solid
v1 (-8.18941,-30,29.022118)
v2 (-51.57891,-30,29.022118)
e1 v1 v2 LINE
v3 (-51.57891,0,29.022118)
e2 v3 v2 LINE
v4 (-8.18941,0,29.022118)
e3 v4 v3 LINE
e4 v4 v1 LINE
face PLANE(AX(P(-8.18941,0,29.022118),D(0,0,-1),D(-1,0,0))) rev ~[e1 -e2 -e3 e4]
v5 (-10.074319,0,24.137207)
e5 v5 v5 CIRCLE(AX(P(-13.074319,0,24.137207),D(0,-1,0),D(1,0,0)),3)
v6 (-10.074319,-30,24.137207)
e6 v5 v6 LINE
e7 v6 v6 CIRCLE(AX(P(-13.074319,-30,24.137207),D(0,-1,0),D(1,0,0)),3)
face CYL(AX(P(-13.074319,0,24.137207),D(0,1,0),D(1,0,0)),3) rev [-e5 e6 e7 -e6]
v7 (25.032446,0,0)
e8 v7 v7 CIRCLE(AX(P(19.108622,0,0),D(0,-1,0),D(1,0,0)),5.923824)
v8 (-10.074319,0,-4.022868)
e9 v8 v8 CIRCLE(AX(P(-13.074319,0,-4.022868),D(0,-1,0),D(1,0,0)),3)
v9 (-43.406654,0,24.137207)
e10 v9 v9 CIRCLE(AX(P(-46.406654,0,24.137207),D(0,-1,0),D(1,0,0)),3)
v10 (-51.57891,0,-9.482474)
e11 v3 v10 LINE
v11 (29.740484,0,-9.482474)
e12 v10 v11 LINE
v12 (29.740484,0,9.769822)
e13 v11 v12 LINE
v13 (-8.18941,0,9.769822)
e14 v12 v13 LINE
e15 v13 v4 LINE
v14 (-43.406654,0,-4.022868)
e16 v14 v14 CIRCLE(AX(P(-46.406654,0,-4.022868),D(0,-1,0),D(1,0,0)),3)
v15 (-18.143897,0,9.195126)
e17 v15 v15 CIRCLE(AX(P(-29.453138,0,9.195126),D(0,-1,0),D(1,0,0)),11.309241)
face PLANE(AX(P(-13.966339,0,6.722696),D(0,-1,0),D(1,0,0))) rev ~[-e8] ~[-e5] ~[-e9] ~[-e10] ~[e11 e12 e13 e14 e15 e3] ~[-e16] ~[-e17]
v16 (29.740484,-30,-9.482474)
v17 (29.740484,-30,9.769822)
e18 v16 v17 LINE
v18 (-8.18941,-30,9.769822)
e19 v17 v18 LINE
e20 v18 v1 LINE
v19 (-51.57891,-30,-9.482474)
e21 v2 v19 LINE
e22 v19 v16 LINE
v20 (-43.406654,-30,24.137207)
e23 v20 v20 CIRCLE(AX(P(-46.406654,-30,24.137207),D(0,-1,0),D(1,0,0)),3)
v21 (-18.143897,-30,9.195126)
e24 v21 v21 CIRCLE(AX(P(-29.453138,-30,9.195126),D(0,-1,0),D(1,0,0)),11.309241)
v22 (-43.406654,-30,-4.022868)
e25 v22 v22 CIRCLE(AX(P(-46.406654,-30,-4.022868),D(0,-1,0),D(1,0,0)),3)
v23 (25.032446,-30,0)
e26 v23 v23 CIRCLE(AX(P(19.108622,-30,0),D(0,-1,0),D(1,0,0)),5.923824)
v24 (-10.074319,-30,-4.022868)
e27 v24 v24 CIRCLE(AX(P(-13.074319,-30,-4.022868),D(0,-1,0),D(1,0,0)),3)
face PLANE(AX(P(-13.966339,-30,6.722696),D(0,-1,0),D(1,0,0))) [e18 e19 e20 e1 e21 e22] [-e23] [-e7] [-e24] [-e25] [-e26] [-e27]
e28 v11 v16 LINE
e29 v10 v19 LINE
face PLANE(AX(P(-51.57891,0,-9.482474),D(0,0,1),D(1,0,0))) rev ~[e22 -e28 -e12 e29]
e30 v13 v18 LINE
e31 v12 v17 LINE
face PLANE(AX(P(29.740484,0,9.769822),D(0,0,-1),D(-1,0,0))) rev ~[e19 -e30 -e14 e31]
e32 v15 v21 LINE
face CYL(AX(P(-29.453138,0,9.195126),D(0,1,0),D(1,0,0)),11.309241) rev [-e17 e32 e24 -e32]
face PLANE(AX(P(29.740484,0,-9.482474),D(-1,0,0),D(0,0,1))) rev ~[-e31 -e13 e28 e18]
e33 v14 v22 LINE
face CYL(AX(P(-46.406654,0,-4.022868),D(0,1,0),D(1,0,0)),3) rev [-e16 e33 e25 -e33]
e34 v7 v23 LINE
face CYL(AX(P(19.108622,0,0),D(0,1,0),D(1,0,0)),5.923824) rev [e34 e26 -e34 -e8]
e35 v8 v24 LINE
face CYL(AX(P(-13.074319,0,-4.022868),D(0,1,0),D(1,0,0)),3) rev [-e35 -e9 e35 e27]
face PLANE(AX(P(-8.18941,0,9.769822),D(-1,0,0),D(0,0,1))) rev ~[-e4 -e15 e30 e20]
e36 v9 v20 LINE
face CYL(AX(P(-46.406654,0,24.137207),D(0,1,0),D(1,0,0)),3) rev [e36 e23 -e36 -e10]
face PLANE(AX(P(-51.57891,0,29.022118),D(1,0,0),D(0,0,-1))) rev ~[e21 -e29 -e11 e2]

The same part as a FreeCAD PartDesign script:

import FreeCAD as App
import Part
import Sketcher

V = App.Vector


def add_polygon(sketch, points):
    """Adds a closed chain of lines whose ends are joined by coincident constraints."""
    first, n = sketch.GeometryCount, len(points)
    for a, b in zip(points, points[1:] + points[:1]):
        sketch.addGeometry(Part.LineSegment(App.Vector(*a, 0), App.Vector(*b, 0)), False)
    for i in range(n):
        sketch.addConstraint(Sketcher.Constraint("Coincident", first + i, 2, first + (i + 1) % n, 1))

doc = App.newDocument("Part")
body = doc.addObject("PartDesign::Body", "Body")

# Sketch on XZ plane
sketch1 = body.newObject("Sketcher::SketchObject", "Sketch")
sketch1.AttachmentSupport = (doc.getObject("XZ_Plane"), [""])
sketch1.MapMode = "FlatFace"
add_polygon(sketch1, [(-8.2, 29), (-51.6, 29), (-51.6, -9.5), (29.7, -9.5), (29.7, 9.8), (-8.2, 9.8)])  # lines 0-5
sketch1.addGeometry(Part.Circle(V(-46.4, -4, 0), V(0, 0, 1), 3), False)  # 6
sketch1.addGeometry(Part.Circle(V(-13.1, -4, 0), V(0, 0, 1), 3), False)  # 7
sketch1.addGeometry(Part.Circle(V(-29.5, 9.2, 0), V(0, 0, 1), 11.3), False)  # 8
sketch1.addGeometry(Part.Circle(V(19.1, 0, 0), V(0, 0, 1), 5.9), False)  # 9
sketch1.addGeometry(Part.Circle(V(-46.4, 24.1, 0), V(0, 0, 1), 3), False)  # 10
sketch1.addGeometry(Part.Circle(V(-13.1, 24.1, 0), V(0, 0, 1), 3), False)  # 11
sketch1.addConstraint(Sketcher.Constraint("Horizontal", 0))
sketch1.addConstraint(Sketcher.Constraint("Vertical", 1))
sketch1.addConstraint(Sketcher.Constraint("Horizontal", 2))
sketch1.addConstraint(Sketcher.Constraint("Vertical", 3))
sketch1.addConstraint(Sketcher.Constraint("Horizontal", 4))
sketch1.addConstraint(Sketcher.Constraint("Vertical", 5))
sketch1.addConstraint(Sketcher.Constraint("Equal", 6, 7))
sketch1.addConstraint(Sketcher.Constraint("Equal", 7, 10))
sketch1.addConstraint(Sketcher.Constraint("Equal", 10, 11))
sketch1.addConstraint(Sketcher.Constraint("PointOnObject", 9, 3, -1))
sketch1.addConstraint(Sketcher.Constraint("Horizontal", 6, 3, 7, 3))
sketch1.addConstraint(Sketcher.Constraint("Horizontal", 10, 3, 11, 3))
sketch1.addConstraint(Sketcher.Constraint("Vertical", 6, 3, 10, 3))
sketch1.addConstraint(Sketcher.Constraint("Vertical", 7, 3, 11, 3))
sketch1.addConstraint(Sketcher.Constraint("Equal", 3, 5))
sketch1.addConstraint(Sketcher.Constraint("Diameter", 6, 6.0))
sketch1.addConstraint(Sketcher.Constraint("Diameter", 8, 22.618482))
sketch1.addConstraint(Sketcher.Constraint("Diameter", 9, 11.847648))
sketch1.addConstraint(Sketcher.Constraint("DistanceX", 0, 2, 0, 1, 43.3895))
sketch1.addConstraint(Sketcher.Constraint("DistanceY", 1, 2, 8, 3, 18.6776))
sketch1.addConstraint(Sketcher.Constraint("DistanceX", 2, 1, 2, 2, 81.319394))
sketch1.addConstraint(Sketcher.Constraint("DistanceY", 1, 2, 1, 1, 38.504592))
sketch1.addConstraint(Sketcher.Constraint("DistanceX", 7, 3, -1, 1, 13.074319))
sketch1.addConstraint(Sketcher.Constraint("DistanceX", 0, 2, -1, 1, 51.57891))
sketch1.addConstraint(Sketcher.Constraint("DistanceX", 8, 3, 7, 3, 16.378819))
sketch1.addConstraint(Sketcher.Constraint("DistanceX", 7, 3, 9, 3, 32.182941))
sketch1.addConstraint(Sketcher.Constraint("DistanceY", 8, 3, 10, 3, 14.942081))
sketch1.addConstraint(Sketcher.Constraint("DistanceX", 6, 3, 2, 2, 76.147138))
sketch1.addConstraint(Sketcher.Constraint("DistanceY", 7, 3, 3, 2, 13.79269))
sketch1.addConstraint(Sketcher.Constraint("DistanceY", 6, 3, -1, 1, 4.022868))
pad1 = body.newObject("PartDesign::Pad", "Pad")
pad1.Profile = sketch1
pad1.Length = 30

doc.recompute()
